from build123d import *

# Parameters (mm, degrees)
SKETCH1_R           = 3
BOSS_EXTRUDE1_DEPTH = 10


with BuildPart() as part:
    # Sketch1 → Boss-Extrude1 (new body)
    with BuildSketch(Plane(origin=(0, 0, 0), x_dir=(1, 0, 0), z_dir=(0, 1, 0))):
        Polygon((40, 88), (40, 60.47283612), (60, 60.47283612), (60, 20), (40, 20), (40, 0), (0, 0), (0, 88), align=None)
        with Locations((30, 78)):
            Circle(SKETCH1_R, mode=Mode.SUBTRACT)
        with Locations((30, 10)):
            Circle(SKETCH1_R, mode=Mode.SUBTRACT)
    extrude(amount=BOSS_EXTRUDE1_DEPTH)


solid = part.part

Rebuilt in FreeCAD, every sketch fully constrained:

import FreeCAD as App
import Part
import Sketcher
from FreeCAD import Vector

doc = App.newDocument("Part")
body = doc.addObject("PartDesign::Body", "Body")

# Sketch on XZ plane
sketch1 = body.newObject("Sketcher::SketchObject", "Sketch")
sketch1.AttachmentSupport = (doc.getObject("XZ_Plane"), [""])
sketch1.MapMode = "FlatFace"
sketch1.addGeometry([
    Part.LineSegment(Vector(40, -60.5, 0), Vector(40, -88, 0)),  # 0
    Part.LineSegment(Vector(40, -88, 0), Vector(0, -88, 0)),  # 1
    Part.LineSegment(Vector(0, -88, 0), Vector(0, 0, 0)),  # 2
    Part.LineSegment(Vector(0, 0, 0), Vector(40, 0, 0)),  # 3
    Part.LineSegment(Vector(40, 0, 0), Vector(40, -20, 0)),  # 4
    Part.LineSegment(Vector(40, -20, 0), Vector(60, -20, 0)),  # 5
    Part.LineSegment(Vector(60, -20, 0), Vector(60, -60.5, 0)),  # 6
    Part.LineSegment(Vector(60, -60.5, 0), Vector(40, -60.5, 0)),  # 7
    Part.Circle(Vector(30, -10, 0), Vector(0, 0, 1), 3),  # 8
    Part.Circle(Vector(30, -78, 0), Vector(0, 0, 1), 3),  # 9
], False)
sketch1.addConstraint([
    Sketcher.Constraint("Coincident", 0, 2, 1, 1),
    Sketcher.Constraint("Coincident", 1, 2, 2, 1),
    Sketcher.Constraint("Coincident", 2, 2, 3, 1),
    Sketcher.Constraint("Coincident", 3, 2, 4, 1),
    Sketcher.Constraint("Coincident", 4, 2, 5, 1),
    Sketcher.Constraint("Coincident", 5, 2, 6, 1),
    Sketcher.Constraint("Coincident", 6, 2, 7, 1),
    Sketcher.Constraint("Coincident", 7, 2, 0, 1),
    Sketcher.Constraint("Vertical", 0),
    Sketcher.Constraint("Horizontal", 1),
    Sketcher.Constraint("Vertical", 2),
    Sketcher.Constraint("Horizontal", 3),
    Sketcher.Constraint("Vertical", 4),
    Sketcher.Constraint("Horizontal", 5),
    Sketcher.Constraint("Vertical", 6),
    Sketcher.Constraint("Horizontal", 7),
    Sketcher.Constraint("Coincident", 2, 2, -1, 1),
    Sketcher.Constraint("Equal", 8, 9),
    Sketcher.Constraint("Vertical", 8, 3, 9, 3),
    Sketcher.Constraint("Vertical", 0, 2, 3, 2),
    Sketcher.Constraint("Equal", 7, 4),
    Sketcher.Constraint("Diameter", 8, 6.0),
    Sketcher.Constraint("DistanceX", 1, 2, 1, 1, 40.0),
    Sketcher.Constraint("DistanceX", 5, 1, 5, 2, 20.0),
    Sketcher.Constraint("DistanceY", 2, 1, 2, 2, 88.0),
    Sketcher.Constraint("DistanceX", -1, 1, 8, 3, 30.0),
    Sketcher.Constraint("DistanceY", 8, 3, -1, 1, 10.0),
    Sketcher.Constraint("DistanceY", 9, 3, -1, 1, 78.0),
    Sketcher.Constraint("DistanceY", 0, 2, 0, 1, 27.527164),
])
pad1 = body.newObject("PartDesign::Pad", "Pad")
pad1.Profile = sketch1
pad1.Length = 10
pad1.Reversed = True

doc.recompute()
